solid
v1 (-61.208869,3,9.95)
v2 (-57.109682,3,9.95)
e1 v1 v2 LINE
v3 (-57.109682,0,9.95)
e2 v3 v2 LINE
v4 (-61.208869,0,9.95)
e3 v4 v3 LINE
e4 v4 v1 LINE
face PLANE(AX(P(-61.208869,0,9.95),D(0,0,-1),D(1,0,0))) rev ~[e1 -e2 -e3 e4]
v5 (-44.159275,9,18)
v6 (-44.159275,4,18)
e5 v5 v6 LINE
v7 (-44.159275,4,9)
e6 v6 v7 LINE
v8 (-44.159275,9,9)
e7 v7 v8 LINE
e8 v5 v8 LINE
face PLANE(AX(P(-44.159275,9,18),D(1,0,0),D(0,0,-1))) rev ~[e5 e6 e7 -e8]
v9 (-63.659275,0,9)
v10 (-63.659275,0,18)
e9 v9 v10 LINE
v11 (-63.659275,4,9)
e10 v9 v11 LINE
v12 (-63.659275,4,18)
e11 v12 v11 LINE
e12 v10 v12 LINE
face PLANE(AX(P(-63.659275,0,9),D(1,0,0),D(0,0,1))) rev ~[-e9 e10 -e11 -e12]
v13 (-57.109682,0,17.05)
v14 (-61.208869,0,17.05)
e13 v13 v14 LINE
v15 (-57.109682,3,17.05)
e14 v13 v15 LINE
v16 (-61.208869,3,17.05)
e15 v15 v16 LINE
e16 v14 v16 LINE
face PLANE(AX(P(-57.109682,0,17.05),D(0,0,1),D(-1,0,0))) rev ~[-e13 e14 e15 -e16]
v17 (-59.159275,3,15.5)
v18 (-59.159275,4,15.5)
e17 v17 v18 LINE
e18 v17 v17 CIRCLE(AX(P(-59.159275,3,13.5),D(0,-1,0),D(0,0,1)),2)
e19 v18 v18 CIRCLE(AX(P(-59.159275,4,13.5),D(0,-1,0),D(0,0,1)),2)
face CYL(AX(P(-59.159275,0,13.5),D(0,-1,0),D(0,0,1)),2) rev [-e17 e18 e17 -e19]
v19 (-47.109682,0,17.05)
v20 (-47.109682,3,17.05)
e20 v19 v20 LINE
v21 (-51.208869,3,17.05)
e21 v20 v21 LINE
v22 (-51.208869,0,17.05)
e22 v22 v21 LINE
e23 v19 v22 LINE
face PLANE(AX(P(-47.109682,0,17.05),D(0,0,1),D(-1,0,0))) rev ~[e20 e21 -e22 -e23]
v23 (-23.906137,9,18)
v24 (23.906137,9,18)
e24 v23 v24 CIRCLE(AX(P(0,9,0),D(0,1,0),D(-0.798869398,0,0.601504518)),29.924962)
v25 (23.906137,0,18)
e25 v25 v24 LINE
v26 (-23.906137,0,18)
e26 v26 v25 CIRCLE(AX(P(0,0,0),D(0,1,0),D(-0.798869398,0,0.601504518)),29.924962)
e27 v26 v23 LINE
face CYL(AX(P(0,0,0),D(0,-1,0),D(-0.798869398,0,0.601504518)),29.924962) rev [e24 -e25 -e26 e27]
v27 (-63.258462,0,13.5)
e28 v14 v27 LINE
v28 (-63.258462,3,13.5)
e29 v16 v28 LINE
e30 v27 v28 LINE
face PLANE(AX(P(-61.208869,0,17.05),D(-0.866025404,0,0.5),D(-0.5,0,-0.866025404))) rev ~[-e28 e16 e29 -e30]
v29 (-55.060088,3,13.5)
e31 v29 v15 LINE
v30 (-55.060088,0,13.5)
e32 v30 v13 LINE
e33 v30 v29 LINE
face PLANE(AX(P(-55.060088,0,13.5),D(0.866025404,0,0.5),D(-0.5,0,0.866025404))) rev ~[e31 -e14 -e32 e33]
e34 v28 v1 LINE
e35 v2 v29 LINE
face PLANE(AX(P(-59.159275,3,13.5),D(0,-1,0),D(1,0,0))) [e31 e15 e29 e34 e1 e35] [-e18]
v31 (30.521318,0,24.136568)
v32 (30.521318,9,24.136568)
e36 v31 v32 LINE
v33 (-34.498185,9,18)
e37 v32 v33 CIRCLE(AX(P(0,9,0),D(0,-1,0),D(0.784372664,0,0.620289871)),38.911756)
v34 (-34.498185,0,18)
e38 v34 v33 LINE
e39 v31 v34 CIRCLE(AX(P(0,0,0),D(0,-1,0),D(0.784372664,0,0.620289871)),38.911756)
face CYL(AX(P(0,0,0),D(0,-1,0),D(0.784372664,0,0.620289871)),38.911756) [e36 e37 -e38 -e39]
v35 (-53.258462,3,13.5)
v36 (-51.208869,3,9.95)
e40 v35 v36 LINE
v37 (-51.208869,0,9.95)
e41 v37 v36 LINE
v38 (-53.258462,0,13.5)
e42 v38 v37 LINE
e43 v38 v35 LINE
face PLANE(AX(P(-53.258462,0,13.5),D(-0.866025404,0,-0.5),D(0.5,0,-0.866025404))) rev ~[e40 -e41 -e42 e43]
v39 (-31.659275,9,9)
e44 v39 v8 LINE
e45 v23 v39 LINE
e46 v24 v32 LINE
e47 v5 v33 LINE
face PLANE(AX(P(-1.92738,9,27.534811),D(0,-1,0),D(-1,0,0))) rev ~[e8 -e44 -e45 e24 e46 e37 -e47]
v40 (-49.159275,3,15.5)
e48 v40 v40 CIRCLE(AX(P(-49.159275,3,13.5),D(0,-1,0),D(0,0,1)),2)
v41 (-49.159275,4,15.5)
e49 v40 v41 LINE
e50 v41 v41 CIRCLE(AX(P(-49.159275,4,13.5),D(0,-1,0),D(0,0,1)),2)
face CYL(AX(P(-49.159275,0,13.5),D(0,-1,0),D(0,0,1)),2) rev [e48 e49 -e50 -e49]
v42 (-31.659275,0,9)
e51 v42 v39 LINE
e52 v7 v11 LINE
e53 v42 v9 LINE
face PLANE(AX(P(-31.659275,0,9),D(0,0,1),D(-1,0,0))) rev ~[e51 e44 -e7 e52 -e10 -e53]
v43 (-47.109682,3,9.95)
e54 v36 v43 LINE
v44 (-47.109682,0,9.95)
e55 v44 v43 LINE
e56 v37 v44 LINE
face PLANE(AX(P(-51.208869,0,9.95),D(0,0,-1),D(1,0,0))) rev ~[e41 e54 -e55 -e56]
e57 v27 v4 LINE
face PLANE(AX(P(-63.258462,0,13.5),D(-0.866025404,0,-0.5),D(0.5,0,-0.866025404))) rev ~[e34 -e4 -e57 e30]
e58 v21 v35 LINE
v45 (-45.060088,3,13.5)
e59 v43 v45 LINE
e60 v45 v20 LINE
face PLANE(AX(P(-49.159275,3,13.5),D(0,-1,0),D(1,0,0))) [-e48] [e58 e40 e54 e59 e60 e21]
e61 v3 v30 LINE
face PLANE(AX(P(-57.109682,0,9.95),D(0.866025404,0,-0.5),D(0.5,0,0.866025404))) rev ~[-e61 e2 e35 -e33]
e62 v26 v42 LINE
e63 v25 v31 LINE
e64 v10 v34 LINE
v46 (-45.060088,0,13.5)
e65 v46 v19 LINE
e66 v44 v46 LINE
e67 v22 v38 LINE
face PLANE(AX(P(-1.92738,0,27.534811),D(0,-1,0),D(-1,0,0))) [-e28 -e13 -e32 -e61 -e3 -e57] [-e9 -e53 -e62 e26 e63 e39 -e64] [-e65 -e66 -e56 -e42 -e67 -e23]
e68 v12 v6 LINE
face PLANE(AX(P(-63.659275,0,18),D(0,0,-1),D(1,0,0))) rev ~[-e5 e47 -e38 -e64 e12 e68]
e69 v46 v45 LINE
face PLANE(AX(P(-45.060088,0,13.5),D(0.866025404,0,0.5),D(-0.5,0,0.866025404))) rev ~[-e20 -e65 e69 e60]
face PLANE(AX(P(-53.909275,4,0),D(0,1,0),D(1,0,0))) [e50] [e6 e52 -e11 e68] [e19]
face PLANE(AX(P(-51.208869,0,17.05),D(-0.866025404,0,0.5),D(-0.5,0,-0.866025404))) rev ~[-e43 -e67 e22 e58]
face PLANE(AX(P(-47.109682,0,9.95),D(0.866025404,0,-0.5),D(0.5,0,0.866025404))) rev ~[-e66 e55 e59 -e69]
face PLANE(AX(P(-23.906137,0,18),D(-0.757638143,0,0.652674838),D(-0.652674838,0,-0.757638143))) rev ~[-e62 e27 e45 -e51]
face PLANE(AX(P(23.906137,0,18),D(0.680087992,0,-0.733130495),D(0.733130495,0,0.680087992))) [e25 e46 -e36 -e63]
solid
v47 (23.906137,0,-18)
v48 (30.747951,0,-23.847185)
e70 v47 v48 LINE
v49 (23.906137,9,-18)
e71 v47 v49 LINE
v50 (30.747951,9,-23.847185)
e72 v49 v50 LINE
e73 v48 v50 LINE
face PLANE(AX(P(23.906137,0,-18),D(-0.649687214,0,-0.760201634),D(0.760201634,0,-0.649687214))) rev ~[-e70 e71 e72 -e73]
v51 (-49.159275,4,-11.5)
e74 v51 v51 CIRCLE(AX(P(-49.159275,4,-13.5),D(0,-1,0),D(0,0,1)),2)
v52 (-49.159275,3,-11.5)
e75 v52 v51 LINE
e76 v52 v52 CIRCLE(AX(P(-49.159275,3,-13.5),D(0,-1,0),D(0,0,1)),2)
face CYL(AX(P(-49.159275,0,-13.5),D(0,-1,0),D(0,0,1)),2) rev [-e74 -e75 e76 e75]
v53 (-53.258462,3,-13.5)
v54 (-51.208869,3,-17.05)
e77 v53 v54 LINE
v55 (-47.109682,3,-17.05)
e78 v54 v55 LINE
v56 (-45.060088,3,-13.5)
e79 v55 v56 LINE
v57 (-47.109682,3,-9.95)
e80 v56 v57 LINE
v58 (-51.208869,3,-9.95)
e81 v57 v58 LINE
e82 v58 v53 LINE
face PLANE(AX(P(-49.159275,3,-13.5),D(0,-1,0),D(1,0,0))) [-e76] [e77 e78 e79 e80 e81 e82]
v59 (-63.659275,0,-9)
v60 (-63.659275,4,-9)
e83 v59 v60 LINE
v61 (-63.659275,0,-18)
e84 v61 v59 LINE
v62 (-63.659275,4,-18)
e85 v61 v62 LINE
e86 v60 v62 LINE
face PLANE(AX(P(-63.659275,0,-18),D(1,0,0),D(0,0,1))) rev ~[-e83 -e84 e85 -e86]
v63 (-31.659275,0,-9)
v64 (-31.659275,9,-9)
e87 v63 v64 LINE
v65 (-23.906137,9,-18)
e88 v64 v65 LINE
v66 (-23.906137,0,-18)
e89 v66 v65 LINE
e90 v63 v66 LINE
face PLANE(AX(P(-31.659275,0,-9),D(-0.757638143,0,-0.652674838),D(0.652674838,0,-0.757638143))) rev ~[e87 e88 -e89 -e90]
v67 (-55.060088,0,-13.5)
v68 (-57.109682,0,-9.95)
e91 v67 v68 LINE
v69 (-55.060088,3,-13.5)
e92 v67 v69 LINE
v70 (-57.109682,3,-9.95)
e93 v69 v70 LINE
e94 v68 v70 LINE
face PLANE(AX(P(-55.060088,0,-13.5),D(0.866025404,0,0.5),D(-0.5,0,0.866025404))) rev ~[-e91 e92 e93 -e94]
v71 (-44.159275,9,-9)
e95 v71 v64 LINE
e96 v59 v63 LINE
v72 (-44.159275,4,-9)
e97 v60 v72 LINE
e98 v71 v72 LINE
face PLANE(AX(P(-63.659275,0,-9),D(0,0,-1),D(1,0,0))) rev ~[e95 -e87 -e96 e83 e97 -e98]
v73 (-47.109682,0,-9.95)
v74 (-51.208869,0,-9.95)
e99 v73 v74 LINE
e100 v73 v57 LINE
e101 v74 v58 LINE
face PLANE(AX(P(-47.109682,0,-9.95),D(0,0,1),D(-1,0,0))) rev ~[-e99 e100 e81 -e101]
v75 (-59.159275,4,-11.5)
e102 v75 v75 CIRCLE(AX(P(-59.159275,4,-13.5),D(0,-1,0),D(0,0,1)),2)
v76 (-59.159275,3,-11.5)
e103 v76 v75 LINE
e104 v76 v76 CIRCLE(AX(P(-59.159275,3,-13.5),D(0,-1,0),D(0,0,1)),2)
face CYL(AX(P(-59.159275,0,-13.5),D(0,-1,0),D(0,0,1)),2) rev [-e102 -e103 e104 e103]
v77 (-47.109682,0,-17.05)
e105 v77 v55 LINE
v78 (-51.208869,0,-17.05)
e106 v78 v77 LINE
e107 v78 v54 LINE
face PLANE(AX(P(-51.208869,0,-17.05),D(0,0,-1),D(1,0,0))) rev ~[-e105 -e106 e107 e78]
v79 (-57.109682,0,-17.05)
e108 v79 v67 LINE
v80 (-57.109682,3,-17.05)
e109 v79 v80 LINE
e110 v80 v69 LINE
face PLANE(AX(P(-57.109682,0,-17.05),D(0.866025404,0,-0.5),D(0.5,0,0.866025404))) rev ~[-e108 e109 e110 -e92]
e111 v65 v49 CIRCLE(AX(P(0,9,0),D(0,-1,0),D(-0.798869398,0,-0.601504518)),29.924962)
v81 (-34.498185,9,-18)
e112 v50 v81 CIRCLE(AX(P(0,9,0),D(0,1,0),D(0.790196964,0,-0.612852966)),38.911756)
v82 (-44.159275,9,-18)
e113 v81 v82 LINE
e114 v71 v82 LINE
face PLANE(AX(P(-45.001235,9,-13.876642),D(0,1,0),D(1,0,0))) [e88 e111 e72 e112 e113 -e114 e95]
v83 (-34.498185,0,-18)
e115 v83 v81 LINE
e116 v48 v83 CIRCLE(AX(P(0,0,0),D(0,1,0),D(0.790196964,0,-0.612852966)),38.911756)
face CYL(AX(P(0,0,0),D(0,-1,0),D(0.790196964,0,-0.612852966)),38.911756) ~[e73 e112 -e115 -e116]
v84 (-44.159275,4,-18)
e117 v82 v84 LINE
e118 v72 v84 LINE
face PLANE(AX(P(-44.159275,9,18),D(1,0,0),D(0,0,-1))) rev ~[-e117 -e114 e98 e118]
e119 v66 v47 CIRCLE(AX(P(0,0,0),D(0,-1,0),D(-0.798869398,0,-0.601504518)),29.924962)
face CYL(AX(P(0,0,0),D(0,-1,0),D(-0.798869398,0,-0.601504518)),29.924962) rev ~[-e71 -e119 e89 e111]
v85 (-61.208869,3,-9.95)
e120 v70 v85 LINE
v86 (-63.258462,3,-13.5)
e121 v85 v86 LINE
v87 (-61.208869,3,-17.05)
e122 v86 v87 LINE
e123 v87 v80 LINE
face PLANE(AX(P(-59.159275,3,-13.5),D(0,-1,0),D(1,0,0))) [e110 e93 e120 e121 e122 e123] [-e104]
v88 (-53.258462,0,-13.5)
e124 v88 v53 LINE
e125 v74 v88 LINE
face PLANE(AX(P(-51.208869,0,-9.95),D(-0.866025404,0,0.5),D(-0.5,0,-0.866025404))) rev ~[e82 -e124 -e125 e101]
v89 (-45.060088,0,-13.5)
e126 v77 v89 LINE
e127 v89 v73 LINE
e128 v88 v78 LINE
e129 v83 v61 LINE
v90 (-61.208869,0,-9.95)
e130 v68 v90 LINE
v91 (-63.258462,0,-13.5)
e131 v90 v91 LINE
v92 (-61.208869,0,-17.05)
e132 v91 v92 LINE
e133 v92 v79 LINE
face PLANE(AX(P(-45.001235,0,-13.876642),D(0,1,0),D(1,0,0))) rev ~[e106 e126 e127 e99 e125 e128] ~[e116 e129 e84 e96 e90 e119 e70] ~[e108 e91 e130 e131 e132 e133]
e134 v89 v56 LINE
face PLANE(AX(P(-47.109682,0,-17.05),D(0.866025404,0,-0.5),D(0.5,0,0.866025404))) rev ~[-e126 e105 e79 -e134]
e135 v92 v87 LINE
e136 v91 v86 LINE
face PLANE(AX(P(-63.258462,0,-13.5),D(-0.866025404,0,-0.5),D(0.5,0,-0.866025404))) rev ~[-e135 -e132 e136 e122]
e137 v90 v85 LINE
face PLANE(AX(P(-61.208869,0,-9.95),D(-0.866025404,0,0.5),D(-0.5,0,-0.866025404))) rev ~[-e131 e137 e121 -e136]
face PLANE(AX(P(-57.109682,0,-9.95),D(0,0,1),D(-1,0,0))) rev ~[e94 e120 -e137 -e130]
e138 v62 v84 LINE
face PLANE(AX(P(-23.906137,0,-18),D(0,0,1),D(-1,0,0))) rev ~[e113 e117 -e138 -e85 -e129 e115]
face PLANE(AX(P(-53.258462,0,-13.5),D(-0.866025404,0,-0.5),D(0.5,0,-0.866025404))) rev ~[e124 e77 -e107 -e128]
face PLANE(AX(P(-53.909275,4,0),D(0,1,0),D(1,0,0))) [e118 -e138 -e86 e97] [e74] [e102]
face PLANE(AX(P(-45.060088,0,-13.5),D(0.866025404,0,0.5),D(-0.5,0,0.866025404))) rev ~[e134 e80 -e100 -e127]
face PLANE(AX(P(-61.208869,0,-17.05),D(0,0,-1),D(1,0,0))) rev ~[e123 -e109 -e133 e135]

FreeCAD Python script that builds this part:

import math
import FreeCAD as App
import Part
import Sketcher
Q = App.Units.Quantity


def add_polygon(sketch, points):
    """Adds a closed chain of lines whose ends are joined by coincident constraints."""
    first, n = sketch.GeometryCount, len(points)
    for a, b in zip(points, points[1:] + points[:1]):
        sketch.addGeometry(Part.LineSegment(App.Vector(*a, 0), App.Vector(*b, 0)), False)
    for i in range(n):
        sketch.addConstraint(Sketcher.Constraint("Coincident", first + i, 2, first + (i + 1) % n, 1))

doc = App.newDocument("Part")
body = doc.addObject("PartDesign::Body", "Body")
body.AllowCompound = True

# Sketch on XZ plane
sketch1 = body.newObject("Sketcher::SketchObject", "Sketch")
sketch1.AttachmentSupport = (doc.getObject("XZ_Plane"), [""])
sketch1.MapMode = "FlatFace"
sketch1.addGeometry([
    Part.LineSegment(App.Vector(-31.7, -9, 0), App.Vector(-23.9, -18, 0)),  # 0
    Part.ArcOfCircle(Part.Circle(App.Vector(0, 0, 0), App.Vector(0, 0, 1), 29.9), math.radians(-143), math.radians(-37)),  # 1
    Part.LineSegment(App.Vector(23.9, -18, 0), App.Vector(30.7, -23.8, 0)),  # 2
    Part.ArcOfCircle(Part.Circle(App.Vector(0, 0, 0), App.Vector(0, 0, 1), 38.9), math.radians(-152), math.radians(-38)),  # 3
    Part.LineSegment(App.Vector(-34.5, -18, 0), App.Vector(-63.7, -18, 0)),  # 4
    Part.LineSegment(App.Vector(-63.7, -18, 0), App.Vector(-63.7, -9, 0)),  # 5
    Part.LineSegment(App.Vector(-63.7, -9, 0), App.Vector(-31.7, -9, 0)),  # 6
    Part.Circle(App.Vector(-59.2, -13.5, 0), App.Vector(0, 0, 1), 2),  # 7
    Part.Circle(App.Vector(-49.2, -13.5, 0), App.Vector(0, 0, 1), 2),  # 8
    Part.LineSegment(App.Vector(-63.7, 18, 0), App.Vector(-34.5, 18, 0)),  # 9
    Part.ArcOfCircle(Part.Circle(App.Vector(0, 0, 0), App.Vector(0, 0, 1), 38.9), math.radians(38), math.radians(152)),  # 10
    Part.LineSegment(App.Vector(30.5, 24.1, 0), App.Vector(23.9, 18, 0)),  # 11
    Part.ArcOfCircle(Part.Circle(App.Vector(0, 0, 0), App.Vector(0, 0, 1), 29.9), math.radians(37), math.radians(143)),  # 12
    Part.LineSegment(App.Vector(-23.9, 18, 0), App.Vector(-31.7, 9, 0)),  # 13
    Part.LineSegment(App.Vector(-31.7, 9, 0), App.Vector(-63.7, 9, 0)),  # 14
    Part.LineSegment(App.Vector(-63.7, 9, 0), App.Vector(-63.7, 18, 0)),  # 15
    Part.Circle(App.Vector(-59.2, 13.5, 0), App.Vector(0, 0, 1), 2),  # 16
    Part.Circle(App.Vector(-49.2, 13.5, 0), App.Vector(0, 0, 1), 2),  # 17
], False)
sketch1.addConstraint([
    Sketcher.Constraint("Coincident", 0, 2, 1, 1),
    Sketcher.Constraint("Coincident", 1, 2, 2, 1),
    Sketcher.Constraint("Coincident", 2, 2, 3, 2),
    Sketcher.Constraint("Coincident", 3, 1, 4, 1),
    Sketcher.Constraint("Coincident", 4, 2, 5, 1),
    Sketcher.Constraint("Coincident", 5, 2, 6, 1),
    Sketcher.Constraint("Coincident", 6, 2, 0, 1),
    Sketcher.Constraint("Coincident", 9, 2, 10, 2),
    Sketcher.Constraint("Coincident", 10, 1, 11, 1),
    Sketcher.Constraint("Coincident", 11, 2, 12, 1),
    Sketcher.Constraint("Coincident", 12, 2, 13, 1),
    Sketcher.Constraint("Coincident", 13, 2, 14, 1),
    Sketcher.Constraint("Coincident", 14, 2, 15, 1),
    Sketcher.Constraint("Coincident", 15, 2, 9, 1),
    Sketcher.Constraint("Horizontal", 4),
    Sketcher.Constraint("Vertical", 5),
    Sketcher.Constraint("Horizontal", 6),
    Sketcher.Constraint("Horizontal", 9),
    Sketcher.Constraint("Horizontal", 14),
    Sketcher.Constraint("Vertical", 15),
    Sketcher.Constraint("Coincident", 1, 3, -1, 1),
    Sketcher.Constraint("Coincident", 3, 3, -1, 1),
    Sketcher.Constraint("Coincident", 10, 3, -1, 1),
    Sketcher.Constraint("Coincident", 12, 3, -1, 1),
    Sketcher.Constraint("Equal", 7, 8),
    Sketcher.Constraint("Equal", 3, 10),
    Sketcher.Constraint("Equal", 1, 12),
    Sketcher.Constraint("Equal", 8, 16),
    Sketcher.Constraint("Equal", 16, 17),
    Sketcher.Constraint("Symmetric", 7, 3, 16, 3, -1),
    Sketcher.Constraint("Symmetric", 8, 3, 17, 3, -1),
    Sketcher.Constraint("Symmetric", 6, 2, 13, 2, -1),
    Sketcher.Constraint("Symmetric", 4, 2, 15, 2, -1),
    Sketcher.Constraint("Horizontal", 7, 3, 8, 3),
    Sketcher.Constraint("Horizontal", 0, 2, 1, 2),
    Sketcher.Constraint("Horizontal", 1, 2, 3, 1),
    Sketcher.Constraint("Horizontal", 9, 2, 11, 2),
    Sketcher.Constraint("Horizontal", 11, 2, 12, 2),
    Sketcher.Constraint("Diameter", 7, 4.0),
    Sketcher.Constraint("DistanceX", 6, 1, 6, 2, 32.0),
    Sketcher.Constraint("DistanceY", 5, 1, 5, 2, 9.0),
    Sketcher.Constraint("Distance", 2, 9.0),
    Sketcher.Constraint("DistanceY", 0, 2, -1, 1, 18.0),
    Sketcher.Constraint("DistanceX", 7, 3, 8, 3, 10.0),
    Sketcher.Constraint("DistanceY", 7, 3, 16, 3, 27.0),
    Sketcher.Constraint("DistanceX", 4, 2, 7, 3, 4.5),
    Sketcher.Constraint("Radius", 1, 29.924962),
    Sketcher.Constraint("Radius", 3, 38.911756),
    Sketcher.Constraint("DistanceX", 4, 2, 4, 1, 29.161091),
    Sketcher.Constraint("DistanceX", 1, 2, 10, 1, 6.615181),
])
pad1 = body.newObject("PartDesign::Pad", "Pad")
pad1.Profile = sketch1
pad1.Length = 9
pad1.Reversed = True

# Sketch on XZ plane
sketch2 = body.newObject("Sketcher::SketchObject", "Sketch001")
sketch2.AttachmentSupport = (doc.getObject("XZ_Plane"), [""])
sketch2.MapMode = "FlatFace"
sketch2.AttachmentOffset = App.Placement(App.Vector(0, 0, -9), App.Rotation())
add_polygon(sketch2, [(-64, -18), (-64, 18), (-44, 18), (-44, -18)])  # lines 0-3
sketch2.addConstraint([
    Sketcher.Constraint("Vertical", 0),
    Sketcher.Constraint("Horizontal", 1),
    Sketcher.Constraint("Vertical", 2),
    Sketcher.Constraint("Horizontal", 3),
    Sketcher.Constraint("DistanceY", 0, 1, 0, 2, 36.0),
    Sketcher.Constraint("DistanceX", 1, 1, 1, 2, 19.5),
    Sketcher.Constraint("DistanceY", -1, 1, 0, 2, 18.0),
    Sketcher.Constraint("DistanceX", 0, 2, -1, 1, 63.659275),
])
pocket1 = body.newObject("PartDesign::Pocket", "Pocket")
pocket1.Profile = sketch2
pocket1.Length = 5
pocket1.Reversed = True

# Sketch on XZ plane
sketch3 = body.newObject("Sketcher::SketchObject", "Sketch002")
sketch3.AttachmentSupport = (doc.getObject("XZ_Plane"), [""])
sketch3.MapMode = "FlatFace"
add_polygon(sketch3, [(-57.1, 9.9), (-55.1, 13.5), (-57.1, 17.1), (-61.2, 17.1), (-63.3, 13.5), (-61.2, 9.9)])  # lines 0-5
add_polygon(sketch3, [(-47.1, 9.9), (-45.1, 13.5), (-47.1, 17.1), (-51.2, 17.1), (-53.3, 13.5), (-51.2, 9.9)])  # lines 6-11
add_polygon(sketch3, [(-61.2, -17.1), (-57.1, -17.1), (-55.1, -13.5), (-57.1, -9.9), (-61.2, -9.9), (-63.3, -13.5)])  # lines 12-17
add_polygon(sketch3, [(-47.1, -17.1), (-45.1, -13.5), (-47.1, -9.9), (-51.2, -9.9), (-53.3, -13.5), (-51.2, -17.1)])  # lines 18-23
sketch3.addConstraint([
    Sketcher.Constraint("Horizontal", 2),
    Sketcher.Constraint("Horizontal", 5),
    Sketcher.Constraint("Horizontal", 8),
    Sketcher.Constraint("Horizontal", 11),
    Sketcher.Constraint("Horizontal", 12),
    Sketcher.Constraint("Horizontal", 15),
    Sketcher.Constraint("Horizontal", 20),
    Sketcher.Constraint("Horizontal", 23),
    Sketcher.Constraint("Symmetric", 1, 2, 12, 2, -1),
    Sketcher.Constraint("Symmetric", 0, 2, 13, 2, -1),
    Sketcher.Constraint("Symmetric", 5, 2, 14, 2, -1),
    Sketcher.Constraint("Symmetric", 3, 2, 16, 2, -1),
    Sketcher.Constraint("Symmetric", 6, 2, 18, 2, -1),
    Sketcher.Constraint("Symmetric", 11, 2, 19, 2, -1),
    Sketcher.Constraint("Symmetric", 9, 2, 21, 2, -1),
    Sketcher.Constraint("Symmetric", 8, 2, 22, 2, -1),
    Sketcher.Constraint("Parallel", 0, 3),
    Sketcher.Constraint("Parallel", 1, 4),
    Sketcher.Constraint("Parallel", 3, 6),
    Sketcher.Constraint("Parallel", 4, 7),
    Sketcher.Constraint("Parallel", 6, 9),
    Sketcher.Constraint("Parallel", 7, 10),
    Sketcher.Constraint("Parallel", 9, 13),
    Sketcher.Constraint("Parallel", 13, 16),
    Sketcher.Constraint("Parallel", 14, 17),
    Sketcher.Constraint("Parallel", 16, 18),
    Sketcher.Constraint("Parallel", 18, 21),
    Sketcher.Constraint("Horizontal", 0, 2, 3, 2),
    Sketcher.Constraint("Horizontal", 3, 2, 6, 2),
    Sketcher.Constraint("Horizontal", 2, 2, 7, 2),
    Sketcher.Constraint("Horizontal", 6, 2, 9, 2),
    Sketcher.Constraint("Horizontal", 5, 2, 10, 2),
    Sketcher.Constraint("Vertical", 2, 2, 4, 2),
    Sketcher.Constraint("Equal", 5, 8),
    Sketcher.Constraint("Angle", 0, Q("60 deg")),
    Sketcher.Constraint("DistanceX", 0, 2, 6, 2, 10.0),
    Sketcher.Constraint("DistanceY", 12, 2, 5, 2, 27.0),
    Sketcher.Constraint("DistanceY", 4, 2, 2, 2, 7.1),
    Sketcher.Constraint("DistanceX", 2, 2, 2, 1, 4.099187),
    Sketcher.Constraint("DistanceX", 0, 2, -1, 1, 55.060088),
])
pocket2 = body.newObject("PartDesign::Pocket", "Pocket001")
pocket2.Profile = sketch3
pocket2.Length = 3

doc.recompute()
